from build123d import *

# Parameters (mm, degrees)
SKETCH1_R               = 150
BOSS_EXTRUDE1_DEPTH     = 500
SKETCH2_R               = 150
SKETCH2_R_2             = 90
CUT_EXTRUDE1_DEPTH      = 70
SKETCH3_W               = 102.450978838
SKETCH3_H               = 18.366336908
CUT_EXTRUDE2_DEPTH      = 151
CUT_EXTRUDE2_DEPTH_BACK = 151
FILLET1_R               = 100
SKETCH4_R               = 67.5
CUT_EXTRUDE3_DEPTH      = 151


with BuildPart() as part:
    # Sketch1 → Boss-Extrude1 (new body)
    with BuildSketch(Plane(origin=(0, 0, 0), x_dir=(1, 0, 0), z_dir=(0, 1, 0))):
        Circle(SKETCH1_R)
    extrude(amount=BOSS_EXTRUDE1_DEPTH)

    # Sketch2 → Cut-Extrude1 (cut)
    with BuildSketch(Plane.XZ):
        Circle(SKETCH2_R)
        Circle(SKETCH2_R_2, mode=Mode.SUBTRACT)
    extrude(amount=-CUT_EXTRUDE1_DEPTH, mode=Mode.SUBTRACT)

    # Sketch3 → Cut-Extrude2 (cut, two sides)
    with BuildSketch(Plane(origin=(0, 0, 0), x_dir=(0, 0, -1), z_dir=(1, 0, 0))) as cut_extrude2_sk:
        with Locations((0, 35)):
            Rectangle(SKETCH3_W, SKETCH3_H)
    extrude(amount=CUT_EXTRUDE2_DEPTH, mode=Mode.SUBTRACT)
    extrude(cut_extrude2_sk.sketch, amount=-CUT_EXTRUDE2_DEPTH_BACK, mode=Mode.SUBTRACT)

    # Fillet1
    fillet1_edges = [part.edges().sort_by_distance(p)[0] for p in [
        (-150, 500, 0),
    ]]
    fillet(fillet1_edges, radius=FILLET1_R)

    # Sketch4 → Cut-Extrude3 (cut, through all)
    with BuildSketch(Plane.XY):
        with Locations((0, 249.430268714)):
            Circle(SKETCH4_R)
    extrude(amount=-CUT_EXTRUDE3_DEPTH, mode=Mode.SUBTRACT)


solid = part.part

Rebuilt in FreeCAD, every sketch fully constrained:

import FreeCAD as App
import Part
import Sketcher
from FreeCAD import Vector
Q = App.Units.Quantity


def edges_at(feature, points):
    """Names of the edges that pass closest to the given points."""
    edges = feature.Shape.Edges
    near = lambda p: min(range(len(edges)), key=lambda i: edges[i].distToShape(Part.Vertex(*p))[0])
    return sorted({f"Edge{near(p) + 1}" for p in points})


def add_polygon(sketch, points):
    """Adds a closed chain of lines whose ends are joined by coincident constraints."""
    first, n = sketch.GeometryCount, len(points)
    for a, b in zip(points, points[1:] + points[:1]):
        sketch.addGeometry(Part.LineSegment(App.Vector(*a, 0), App.Vector(*b, 0)), False)
    for i in range(n):
        sketch.addConstraint(Sketcher.Constraint("Coincident", first + i, 2, first + (i + 1) % n, 1))

doc = App.newDocument("Part")
body = doc.addObject("PartDesign::Body", "Body")

# Sketch on XZ plane
sketch1 = body.newObject("Sketcher::SketchObject", "Sketch")
sketch1.AttachmentSupport = (doc.getObject("XZ_Plane"), [""])
sketch1.MapMode = "FlatFace"
sketch1.addGeometry(Part.Circle(Vector(0, 0, 0), Vector(0, 0, 1), 150), False)
sketch1.addConstraint(Sketcher.Constraint("Coincident", 0, 3, -1, 1))
sketch1.addConstraint(Sketcher.Constraint("Diameter", 0, Q("300 mm")))
pad1 = body.newObject("PartDesign::Pad", "Pad")
pad1.Profile = sketch1
pad1.Length = 500
pad1.Reversed = True

# Sketch on XZ plane
sketch2 = body.newObject("Sketcher::SketchObject", "Sketch001")
sketch2.AttachmentSupport = (doc.getObject("XZ_Plane"), [""])
sketch2.MapMode = "FlatFace"
sketch2.addGeometry(Part.Circle(Vector(0, 0, 0), Vector(0, 0, 1), 150), False)
sketch2.addGeometry(Part.Circle(Vector(0, 0, 0), Vector(0, 0, 1), 90), False)
sketch2.addConstraint(Sketcher.Constraint("Coincident", 0, 3, -1, 1))
sketch2.addConstraint(Sketcher.Constraint("Coincident", 1, 3, -1, 1))
sketch2.addConstraint(Sketcher.Constraint("Diameter", 0, Q("300 mm")))
sketch2.addConstraint(Sketcher.Constraint("Diameter", 1, Q("180 mm")))
pocket1 = body.newObject("PartDesign::Pocket", "Pocket")
pocket1.Profile = sketch2
pocket1.Length = 70

# Sketch on YZ plane
sketch3 = body.newObject("Sketcher::SketchObject", "Sketch002")
sketch3.AttachmentSupport = (doc.getObject("YZ_Plane"), [""])
sketch3.MapMode = "FlatFace"
add_polygon(sketch3, [(44, 51), (26, 51), (26, -51), (44, -51)])  # lines 0-3
sketch3.addConstraint(Sketcher.Constraint("Horizontal", 0))
sketch3.addConstraint(Sketcher.Constraint("Vertical", 1))
sketch3.addConstraint(Sketcher.Constraint("Horizontal", 2))
sketch3.addConstraint(Sketcher.Constraint("Vertical", 3))
sketch3.addConstraint(Sketcher.Constraint("DistanceY", 1, 2, 1, 1, Q("102.450979 mm")))
sketch3.addConstraint(Sketcher.Constraint("DistanceX", 0, 2, 0, 1, Q("18.366337 mm")))
sketch3.addConstraint(Sketcher.Constraint("DistanceX", -1, 1, 0, 2, Q("25.816832 mm")))
sketch3.addConstraint(Sketcher.Constraint("DistanceY", -1, 1, 0, 2, Q("51.225489 mm")))
pocket2 = body.newObject("PartDesign::Pocket", "Pocket001")
pocket2.Profile = sketch3
pocket2.Type = "ThroughAll"
pocket2.Midplane = True
doc.recompute()

fillet = body.newObject("PartDesign::Fillet", "Fillet")
fillet.Base = (pocket2, edges_at(pocket2, [(-150, 500, 0)]))
fillet.Radius = 100

# Sketch on XY plane
sketch4 = body.newObject("Sketcher::SketchObject", "Sketch003")
sketch4.AttachmentSupport = (doc.getObject("XY_Plane"), [""])
sketch4.MapMode = "FlatFace"
sketch4.addGeometry(Part.Circle(Vector(0, 249, 0), Vector(0, 0, 1), 68), False)
sketch4.addConstraint(Sketcher.Constraint("PointOnObject", 0, 3, -2))
sketch4.addConstraint(Sketcher.Constraint("Diameter", 0, Q("135 mm")))
sketch4.addConstraint(Sketcher.Constraint("DistanceY", -1, 1, 0, 3, Q("249.430269 mm")))
pocket3 = body.newObject("PartDesign::Pocket", "Pocket002")
pocket3.Profile = sketch4
pocket3.Type = "ThroughAll"

doc.recompute()
